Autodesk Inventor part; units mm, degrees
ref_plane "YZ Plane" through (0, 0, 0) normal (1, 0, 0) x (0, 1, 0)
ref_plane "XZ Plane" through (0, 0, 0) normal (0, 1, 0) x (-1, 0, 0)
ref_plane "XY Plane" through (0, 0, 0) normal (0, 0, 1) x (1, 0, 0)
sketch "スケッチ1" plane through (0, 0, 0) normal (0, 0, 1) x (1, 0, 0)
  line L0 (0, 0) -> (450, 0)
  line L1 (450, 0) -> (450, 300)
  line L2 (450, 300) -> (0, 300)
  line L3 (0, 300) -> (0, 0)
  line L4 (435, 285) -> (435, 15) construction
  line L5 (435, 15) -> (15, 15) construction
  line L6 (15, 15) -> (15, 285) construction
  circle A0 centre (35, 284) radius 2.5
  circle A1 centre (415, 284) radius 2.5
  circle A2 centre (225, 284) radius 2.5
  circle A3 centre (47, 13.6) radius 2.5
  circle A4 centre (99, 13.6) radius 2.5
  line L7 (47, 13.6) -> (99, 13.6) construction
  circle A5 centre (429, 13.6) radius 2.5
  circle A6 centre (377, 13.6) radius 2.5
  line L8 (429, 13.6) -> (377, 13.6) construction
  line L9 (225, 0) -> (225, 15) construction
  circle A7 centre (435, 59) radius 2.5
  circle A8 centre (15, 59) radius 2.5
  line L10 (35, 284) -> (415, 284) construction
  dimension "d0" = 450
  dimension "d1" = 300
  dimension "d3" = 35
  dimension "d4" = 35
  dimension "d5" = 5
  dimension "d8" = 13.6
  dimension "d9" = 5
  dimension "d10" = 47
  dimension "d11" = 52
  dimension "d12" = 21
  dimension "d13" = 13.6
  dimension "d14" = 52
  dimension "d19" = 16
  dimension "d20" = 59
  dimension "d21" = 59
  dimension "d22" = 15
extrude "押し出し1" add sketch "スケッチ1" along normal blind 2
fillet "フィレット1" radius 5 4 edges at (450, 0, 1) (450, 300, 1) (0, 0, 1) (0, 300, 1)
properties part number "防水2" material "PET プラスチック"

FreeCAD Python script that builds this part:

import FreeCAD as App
import Part
import Sketcher
Q = App.Units.Quantity


def edges_at(feature, points):
    """Names of the edges that pass closest to the given points."""
    edges = feature.Shape.Edges
    near = lambda p: min(range(len(edges)), key=lambda i: edges[i].distToShape(Part.Vertex(*p))[0])
    return sorted({f"Edge{near(p) + 1}" for p in points})

doc = App.newDocument("Part")
params = doc.addObject("Spreadsheet::Sheet", "Params")
for row, (alias, value) in enumerate([
    ("sketch1_diameter", "5 mm"),
    ("sketch1_width", "450 mm"),
    ("sketch1_height", "300 mm"),
    ("pad1_length", "2 mm"),
    ("fillet_radius", "5 mm"),
], start=1):
    params.set(f"A{row}", alias)
    params.set(f"B{row}", "=" + value)
    params.setAlias(f"B{row}", alias)

body = doc.addObject("PartDesign::Body", "Body")

# Sketch on XY plane
sketch1 = body.newObject("Sketcher::SketchObject", "Sketch")
sketch1.AttachmentSupport = (doc.getObject("XY_Plane"), [""])
sketch1.MapMode = "FlatFace"
sketch1.addGeometry(Part.LineSegment(App.Vector(0, 300, 0), App.Vector(0, 0, 0)), False)
sketch1.addGeometry(Part.LineSegment(App.Vector(0, 0, 0), App.Vector(450, 0, 0)), False)
sketch1.addGeometry(Part.LineSegment(App.Vector(450, 0, 0), App.Vector(450, 300, 0)), False)
sketch1.addGeometry(Part.LineSegment(App.Vector(450, 300, 0), App.Vector(0, 300, 0)), False)
sketch1.addGeometry(Part.Circle(App.Vector(47, 13.6, 0), App.Vector(0, 0, 1), 2.5), False)
sketch1.addGeometry(Part.Circle(App.Vector(99, 13.6, 0), App.Vector(0, 0, 1), 2.5), False)
sketch1.addGeometry(Part.Circle(App.Vector(15, 59, 0), App.Vector(0, 0, 1), 2.5), False)
sketch1.addGeometry(Part.Circle(App.Vector(377, 13.6, 0), App.Vector(0, 0, 1), 2.5), False)
sketch1.addGeometry(Part.Circle(App.Vector(429, 13.6, 0), App.Vector(0, 0, 1), 2.5), False)
sketch1.addGeometry(Part.Circle(App.Vector(435, 59, 0), App.Vector(0, 0, 1), 2.5), False)
sketch1.addGeometry(Part.Circle(App.Vector(35, 284, 0), App.Vector(0, 0, 1), 2.5), False)
sketch1.addGeometry(Part.Circle(App.Vector(225, 284, 0), App.Vector(0, 0, 1), 2.5), False)
sketch1.addGeometry(Part.Circle(App.Vector(415, 284, 0), App.Vector(0, 0, 1), 2.5), False)
sketch1.addConstraint(Sketcher.Constraint("Coincident", 0, 2, 1, 1))
sketch1.addConstraint(Sketcher.Constraint("Coincident", 1, 2, 2, 1))
sketch1.addConstraint(Sketcher.Constraint("Coincident", 2, 2, 3, 1))
sketch1.addConstraint(Sketcher.Constraint("Coincident", 3, 2, 0, 1))
sketch1.addConstraint(Sketcher.Constraint("Vertical", 0))
sketch1.addConstraint(Sketcher.Constraint("Horizontal", 1))
sketch1.addConstraint(Sketcher.Constraint("Vertical", 2))
sketch1.addConstraint(Sketcher.Constraint("Horizontal", 3))
sketch1.addConstraint(Sketcher.Constraint("Coincident", 0, 2, -1, 1))
sketch1.addConstraint(Sketcher.Constraint("Equal", 4, 5))
sketch1.addConstraint(Sketcher.Constraint("Equal", 5, 6))
sketch1.addConstraint(Sketcher.Constraint("Equal", 6, 7))
sketch1.addConstraint(Sketcher.Constraint("Equal", 7, 8))
sketch1.addConstraint(Sketcher.Constraint("Equal", 8, 9))
sketch1.addConstraint(Sketcher.Constraint("Equal", 9, 10))
sketch1.addConstraint(Sketcher.Constraint("Equal", 10, 11))
sketch1.addConstraint(Sketcher.Constraint("Equal", 11, 12))
sketch1.addConstraint(Sketcher.Constraint("Horizontal", 4, 3, 5, 3))
sketch1.addConstraint(Sketcher.Constraint("Horizontal", 5, 3, 7, 3))
sketch1.addConstraint(Sketcher.Constraint("Horizontal", 7, 3, 8, 3))
sketch1.addConstraint(Sketcher.Constraint("Horizontal", 6, 3, 9, 3))
sketch1.addConstraint(Sketcher.Constraint("Horizontal", 10, 3, 11, 3))
sketch1.addConstraint(Sketcher.Constraint("Horizontal", 11, 3, 12, 3))
sketch1.addConstraint(Sketcher.Constraint("Diameter", 4, Q("5 mm")))
sketch1.addConstraint(Sketcher.Constraint("DistanceX", 1, 1, 1, 2, Q("450 mm")))
sketch1.addConstraint(Sketcher.Constraint("DistanceY", 0, 2, 0, 1, Q("300 mm")))
sketch1.addConstraint(Sketcher.Constraint("DistanceX", -1, 1, 4, 3, Q("47 mm")))
sketch1.addConstraint(Sketcher.Constraint("DistanceX", -1, 1, 6, 3, Q("15 mm")))
sketch1.addConstraint(Sketcher.Constraint("DistanceY", -1, 1, 6, 3, Q("59 mm")))
sketch1.addConstraint(Sketcher.Constraint("DistanceX", -1, 1, 10, 3, Q("35 mm")))
sketch1.addConstraint(Sketcher.Constraint("DistanceX", 4, 3, 5, 3, Q("52 mm")))
sketch1.addConstraint(Sketcher.Constraint("DistanceX", 7, 3, 8, 3, Q("52 mm")))
sketch1.addConstraint(Sketcher.Constraint("DistanceX", 8, 3, 1, 2, Q("21 mm")))
sketch1.addConstraint(Sketcher.Constraint("DistanceX", 9, 3, 1, 2, Q("15 mm")))
sketch1.addConstraint(Sketcher.Constraint("DistanceX", 12, 3, 1, 2, Q("35 mm")))
sketch1.addConstraint(Sketcher.Constraint("DistanceY", 12, 3, 2, 2, Q("16 mm")))
sketch1.addConstraint(Sketcher.Constraint("DistanceY", -1, 1, 4, 3, Q("13.6 mm")))
sketch1.addConstraint(Sketcher.Constraint("DistanceX", -1, 1, 11, 3, Q("225 mm")))
sketch1.setExpression("Constraints[23]", "Params.sketch1_diameter")
sketch1.setExpression("Constraints[24]", "Params.sketch1_width")
sketch1.setExpression("Constraints[25]", "Params.sketch1_height")
pad1 = body.newObject("PartDesign::Pad", "Pad")
pad1.Profile = sketch1
pad1.setExpression("Length", "Params.pad1_length")
doc.recompute()

fillet = body.newObject("PartDesign::Fillet", "Fillet")
fillet.Base = (pad1, edges_at(pad1, [
    (450, 0, 1),
    (450, 300, 1),
    (0, 0, 1),
    (0, 300, 1),
]))
fillet.setExpression("Radius", "Params.fillet_radius")

doc.recompute()
